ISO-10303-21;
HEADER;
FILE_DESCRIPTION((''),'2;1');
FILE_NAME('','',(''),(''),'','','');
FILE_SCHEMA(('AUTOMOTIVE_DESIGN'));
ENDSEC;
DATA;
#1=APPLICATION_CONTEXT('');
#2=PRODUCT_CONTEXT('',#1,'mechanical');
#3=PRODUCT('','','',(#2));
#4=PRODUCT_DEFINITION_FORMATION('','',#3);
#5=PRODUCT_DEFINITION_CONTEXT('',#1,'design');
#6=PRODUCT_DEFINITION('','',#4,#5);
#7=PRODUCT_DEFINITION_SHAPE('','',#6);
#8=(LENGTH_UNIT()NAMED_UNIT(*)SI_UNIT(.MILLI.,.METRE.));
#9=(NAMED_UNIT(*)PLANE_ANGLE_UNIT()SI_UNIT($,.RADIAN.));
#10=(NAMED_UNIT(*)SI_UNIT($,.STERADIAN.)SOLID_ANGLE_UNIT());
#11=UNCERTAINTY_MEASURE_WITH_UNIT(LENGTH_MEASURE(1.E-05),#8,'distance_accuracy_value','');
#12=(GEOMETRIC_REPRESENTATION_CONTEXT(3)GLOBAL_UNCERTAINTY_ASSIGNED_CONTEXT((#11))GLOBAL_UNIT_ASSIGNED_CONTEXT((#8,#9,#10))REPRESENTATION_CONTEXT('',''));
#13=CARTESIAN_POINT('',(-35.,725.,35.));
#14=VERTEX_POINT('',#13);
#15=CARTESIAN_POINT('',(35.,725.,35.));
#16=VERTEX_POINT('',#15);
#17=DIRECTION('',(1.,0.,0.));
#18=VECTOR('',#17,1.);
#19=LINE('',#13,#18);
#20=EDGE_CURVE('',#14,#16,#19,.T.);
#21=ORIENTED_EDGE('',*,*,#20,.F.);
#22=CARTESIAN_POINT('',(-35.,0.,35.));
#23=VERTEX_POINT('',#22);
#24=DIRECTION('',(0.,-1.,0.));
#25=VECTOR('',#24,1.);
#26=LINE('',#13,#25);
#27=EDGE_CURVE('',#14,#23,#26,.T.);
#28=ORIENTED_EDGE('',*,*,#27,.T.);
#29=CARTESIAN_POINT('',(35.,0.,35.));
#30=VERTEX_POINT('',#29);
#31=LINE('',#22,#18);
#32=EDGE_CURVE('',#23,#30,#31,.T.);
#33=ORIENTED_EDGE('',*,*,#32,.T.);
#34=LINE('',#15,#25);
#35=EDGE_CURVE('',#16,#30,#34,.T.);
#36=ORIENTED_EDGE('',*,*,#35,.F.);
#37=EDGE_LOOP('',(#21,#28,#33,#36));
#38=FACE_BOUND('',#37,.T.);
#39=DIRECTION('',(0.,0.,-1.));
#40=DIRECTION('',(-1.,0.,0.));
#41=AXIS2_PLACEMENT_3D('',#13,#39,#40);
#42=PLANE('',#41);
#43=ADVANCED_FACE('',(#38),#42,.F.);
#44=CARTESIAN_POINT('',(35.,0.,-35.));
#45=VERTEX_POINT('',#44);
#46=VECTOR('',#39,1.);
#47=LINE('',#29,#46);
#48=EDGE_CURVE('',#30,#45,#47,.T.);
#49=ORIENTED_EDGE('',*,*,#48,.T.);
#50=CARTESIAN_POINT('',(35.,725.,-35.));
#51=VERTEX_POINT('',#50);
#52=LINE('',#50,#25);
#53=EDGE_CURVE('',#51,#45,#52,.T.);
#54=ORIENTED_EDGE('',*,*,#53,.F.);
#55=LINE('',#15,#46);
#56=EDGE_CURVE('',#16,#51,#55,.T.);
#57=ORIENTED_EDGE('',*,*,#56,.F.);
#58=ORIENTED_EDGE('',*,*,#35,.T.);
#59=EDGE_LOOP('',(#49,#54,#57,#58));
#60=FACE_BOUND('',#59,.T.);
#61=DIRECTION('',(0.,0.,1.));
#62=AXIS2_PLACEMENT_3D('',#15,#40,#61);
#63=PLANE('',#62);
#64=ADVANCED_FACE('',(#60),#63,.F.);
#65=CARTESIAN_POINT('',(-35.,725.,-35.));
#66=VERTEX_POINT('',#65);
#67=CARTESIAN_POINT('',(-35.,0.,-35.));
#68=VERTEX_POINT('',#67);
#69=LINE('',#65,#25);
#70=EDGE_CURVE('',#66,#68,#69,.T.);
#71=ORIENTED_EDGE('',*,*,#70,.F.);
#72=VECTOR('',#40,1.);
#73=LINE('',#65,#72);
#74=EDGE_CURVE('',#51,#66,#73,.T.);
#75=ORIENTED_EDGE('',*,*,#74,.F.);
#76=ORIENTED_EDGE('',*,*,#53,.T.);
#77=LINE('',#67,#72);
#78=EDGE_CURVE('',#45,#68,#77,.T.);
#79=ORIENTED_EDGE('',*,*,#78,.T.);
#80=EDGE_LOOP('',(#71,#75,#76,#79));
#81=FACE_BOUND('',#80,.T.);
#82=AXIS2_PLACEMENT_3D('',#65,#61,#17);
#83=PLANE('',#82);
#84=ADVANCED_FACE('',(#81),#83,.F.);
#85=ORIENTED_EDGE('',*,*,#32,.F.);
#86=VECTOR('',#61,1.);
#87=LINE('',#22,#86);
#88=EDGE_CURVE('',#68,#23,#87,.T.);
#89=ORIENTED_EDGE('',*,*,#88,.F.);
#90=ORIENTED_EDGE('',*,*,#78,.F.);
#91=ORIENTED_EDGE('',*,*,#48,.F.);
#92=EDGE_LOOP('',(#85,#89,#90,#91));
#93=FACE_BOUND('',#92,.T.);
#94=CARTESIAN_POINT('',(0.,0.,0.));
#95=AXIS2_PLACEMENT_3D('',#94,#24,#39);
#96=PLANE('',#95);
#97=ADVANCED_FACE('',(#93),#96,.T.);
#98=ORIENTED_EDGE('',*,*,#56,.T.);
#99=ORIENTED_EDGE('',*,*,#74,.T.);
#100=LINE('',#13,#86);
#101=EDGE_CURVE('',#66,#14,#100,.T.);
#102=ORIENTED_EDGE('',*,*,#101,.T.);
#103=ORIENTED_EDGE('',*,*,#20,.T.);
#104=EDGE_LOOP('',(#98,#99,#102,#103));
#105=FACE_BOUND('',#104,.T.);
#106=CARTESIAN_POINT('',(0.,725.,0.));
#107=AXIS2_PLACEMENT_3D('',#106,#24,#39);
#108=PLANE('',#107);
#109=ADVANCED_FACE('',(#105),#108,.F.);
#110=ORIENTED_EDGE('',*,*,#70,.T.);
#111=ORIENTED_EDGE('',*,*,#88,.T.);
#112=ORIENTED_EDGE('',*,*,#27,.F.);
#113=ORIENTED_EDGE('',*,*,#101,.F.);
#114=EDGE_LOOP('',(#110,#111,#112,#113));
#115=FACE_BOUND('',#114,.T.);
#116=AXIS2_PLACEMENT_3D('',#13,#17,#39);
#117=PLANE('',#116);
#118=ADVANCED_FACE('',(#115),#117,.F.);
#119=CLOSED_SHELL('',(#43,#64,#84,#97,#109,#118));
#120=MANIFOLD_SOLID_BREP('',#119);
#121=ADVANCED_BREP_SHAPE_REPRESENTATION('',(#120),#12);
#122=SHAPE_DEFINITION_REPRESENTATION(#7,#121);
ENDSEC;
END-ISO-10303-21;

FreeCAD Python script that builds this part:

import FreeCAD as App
import Part
import Sketcher
from FreeCAD import Vector
Q = App.Units.Quantity


def add_polygon(sketch, points):
    """Adds a closed chain of lines whose ends are joined by coincident constraints."""
    first, n = sketch.GeometryCount, len(points)
    for a, b in zip(points, points[1:] + points[:1]):
        sketch.addGeometry(Part.LineSegment(App.Vector(*a, 0), App.Vector(*b, 0)), False)
    for i in range(n):
        sketch.addConstraint(Sketcher.Constraint("Coincident", first + i, 2, first + (i + 1) % n, 1))

doc = App.newDocument("Part")
body = doc.addObject("PartDesign::Body", "Body")

sketch1 = doc.addObject("Sketcher::SketchObject", "Sketch")
body.addObject(sketch1)
sketch1.AttachmentSupport = (doc.XZ_Plane, [""])
sketch1.MapMode = "FlatFace"
add_polygon(sketch1, [(-35, -35), (-35, 35), (35, 35), (35, -35)])
sketch1.addConstraint(Sketcher.Constraint("Vertical", 0))
sketch1.addConstraint(Sketcher.Constraint("Horizontal", 1))
sketch1.addConstraint(Sketcher.Constraint("Vertical", 2))
sketch1.addConstraint(Sketcher.Constraint("Horizontal", 3))
sketch1.addConstraint(Sketcher.Constraint("Symmetric", 0, 2, 2, 2, -1, 1))
sketch1.addConstraint(Sketcher.Constraint("Equal", 3, 0))
sketch1.addConstraint(Sketcher.Constraint("DistanceX", 1, 1, 1, 2, Q("70 mm")))
pad1 = doc.addObject("PartDesign::Pad", "Pad")
body.addObject(pad1)
pad1.Profile = sketch1
pad1.Length = 725
pad1.Reversed = True

doc.recompute()
